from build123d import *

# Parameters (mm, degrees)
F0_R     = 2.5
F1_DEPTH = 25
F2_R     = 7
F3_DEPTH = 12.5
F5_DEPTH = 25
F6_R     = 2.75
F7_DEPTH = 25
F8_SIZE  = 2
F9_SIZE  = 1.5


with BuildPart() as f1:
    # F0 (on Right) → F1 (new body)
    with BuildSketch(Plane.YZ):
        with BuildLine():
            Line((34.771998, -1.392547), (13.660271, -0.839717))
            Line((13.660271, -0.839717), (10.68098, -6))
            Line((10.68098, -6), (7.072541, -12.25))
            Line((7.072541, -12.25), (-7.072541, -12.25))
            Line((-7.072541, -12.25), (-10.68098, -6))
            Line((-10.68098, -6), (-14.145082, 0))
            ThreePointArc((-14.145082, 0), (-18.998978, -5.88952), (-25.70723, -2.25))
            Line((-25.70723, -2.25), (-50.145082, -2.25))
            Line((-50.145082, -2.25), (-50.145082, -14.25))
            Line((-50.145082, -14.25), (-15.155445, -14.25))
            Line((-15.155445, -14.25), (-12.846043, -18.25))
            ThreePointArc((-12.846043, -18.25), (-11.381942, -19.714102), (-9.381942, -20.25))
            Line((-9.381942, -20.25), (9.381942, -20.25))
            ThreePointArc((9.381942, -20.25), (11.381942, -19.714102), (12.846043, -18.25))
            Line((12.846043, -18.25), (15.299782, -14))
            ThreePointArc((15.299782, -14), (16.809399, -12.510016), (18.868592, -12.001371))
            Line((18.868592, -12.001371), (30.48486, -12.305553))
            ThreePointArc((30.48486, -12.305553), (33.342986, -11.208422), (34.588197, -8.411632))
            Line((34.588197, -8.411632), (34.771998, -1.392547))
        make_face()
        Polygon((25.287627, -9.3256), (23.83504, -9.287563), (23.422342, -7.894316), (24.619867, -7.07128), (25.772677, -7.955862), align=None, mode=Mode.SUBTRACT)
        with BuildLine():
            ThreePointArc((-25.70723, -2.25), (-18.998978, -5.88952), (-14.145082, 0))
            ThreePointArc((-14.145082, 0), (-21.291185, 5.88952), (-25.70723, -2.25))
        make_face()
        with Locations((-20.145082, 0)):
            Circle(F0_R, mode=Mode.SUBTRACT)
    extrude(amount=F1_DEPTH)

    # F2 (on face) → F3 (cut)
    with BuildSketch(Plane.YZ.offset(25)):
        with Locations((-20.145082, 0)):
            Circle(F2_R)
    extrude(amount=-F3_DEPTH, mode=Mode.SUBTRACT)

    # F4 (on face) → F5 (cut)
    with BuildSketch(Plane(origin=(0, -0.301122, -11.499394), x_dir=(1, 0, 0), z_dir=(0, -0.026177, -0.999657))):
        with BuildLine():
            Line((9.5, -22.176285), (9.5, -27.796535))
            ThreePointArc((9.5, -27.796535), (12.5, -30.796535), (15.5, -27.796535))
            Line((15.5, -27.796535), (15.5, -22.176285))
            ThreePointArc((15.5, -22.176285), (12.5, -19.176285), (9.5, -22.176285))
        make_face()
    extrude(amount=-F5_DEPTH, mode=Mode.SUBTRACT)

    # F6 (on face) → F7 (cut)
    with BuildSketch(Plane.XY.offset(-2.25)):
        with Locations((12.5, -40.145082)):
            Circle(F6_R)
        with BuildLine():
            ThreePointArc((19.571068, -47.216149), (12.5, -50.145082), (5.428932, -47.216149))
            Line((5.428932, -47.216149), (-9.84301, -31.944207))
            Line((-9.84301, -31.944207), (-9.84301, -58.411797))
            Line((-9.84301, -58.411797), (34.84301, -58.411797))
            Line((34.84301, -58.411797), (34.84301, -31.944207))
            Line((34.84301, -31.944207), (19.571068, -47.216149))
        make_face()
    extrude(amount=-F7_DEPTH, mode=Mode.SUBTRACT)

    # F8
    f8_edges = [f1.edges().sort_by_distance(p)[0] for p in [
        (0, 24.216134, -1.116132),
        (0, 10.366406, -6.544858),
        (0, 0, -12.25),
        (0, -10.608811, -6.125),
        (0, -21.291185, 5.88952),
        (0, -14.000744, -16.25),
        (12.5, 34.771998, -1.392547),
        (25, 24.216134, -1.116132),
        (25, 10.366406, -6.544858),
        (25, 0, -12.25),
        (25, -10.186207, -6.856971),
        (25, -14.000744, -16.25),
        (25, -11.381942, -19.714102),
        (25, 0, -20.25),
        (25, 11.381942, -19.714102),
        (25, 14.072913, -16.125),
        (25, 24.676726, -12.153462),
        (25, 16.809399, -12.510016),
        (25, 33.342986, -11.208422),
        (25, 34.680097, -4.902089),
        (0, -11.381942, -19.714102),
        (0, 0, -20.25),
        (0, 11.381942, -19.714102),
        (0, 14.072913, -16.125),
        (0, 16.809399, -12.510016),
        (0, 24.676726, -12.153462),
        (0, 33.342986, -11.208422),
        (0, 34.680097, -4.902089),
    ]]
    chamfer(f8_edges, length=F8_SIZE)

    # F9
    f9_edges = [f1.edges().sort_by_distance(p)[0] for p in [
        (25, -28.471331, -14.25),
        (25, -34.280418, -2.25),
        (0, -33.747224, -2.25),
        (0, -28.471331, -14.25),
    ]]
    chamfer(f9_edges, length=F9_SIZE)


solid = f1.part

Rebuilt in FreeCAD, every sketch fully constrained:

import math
import FreeCAD as App
import Part
import Sketcher

V = App.Vector
Q = App.Units.Quantity


def edges_at(feature, points):
    """Names of the edges that pass closest to the given points."""
    edges = feature.Shape.Edges
    near = lambda p: min(range(len(edges)), key=lambda i: edges[i].distToShape(Part.Vertex(*p))[0])
    return sorted({f"Edge{near(p) + 1}" for p in points})


def add_polygon(sketch, points):
    """Adds a closed chain of lines whose ends are joined by coincident constraints."""
    first, n = sketch.GeometryCount, len(points)
    for a, b in zip(points, points[1:] + points[:1]):
        sketch.addGeometry(Part.LineSegment(App.Vector(*a, 0), App.Vector(*b, 0)), False)
    for i in range(n):
        sketch.addConstraint(Sketcher.Constraint("Coincident", first + i, 2, first + (i + 1) % n, 1))

doc = App.newDocument("Part")
body = doc.addObject("PartDesign::Body", "Body")

# Sketch on YZ plane
sketch1 = body.newObject("Sketcher::SketchObject", "Sketch")
sketch1.AttachmentSupport = (doc.getObject("YZ_Plane"), [""])
sketch1.MapMode = "FlatFace"
sketch1.addGeometry(Part.LineSegment(V(34.8, -1.4, 0), V(13.7, -0.8, 0)), False)  # 0
sketch1.addGeometry(Part.LineSegment(V(13.7, -0.8, 0), V(10.7, -6, 0)), False)  # 1
sketch1.addGeometry(Part.LineSegment(V(10.7, -6, 0), V(7.1, -12.2, 0)), False)  # 2
sketch1.addGeometry(Part.LineSegment(V(7.1, -12.2, 0), V(-7.1, -12.2, 0)), False)  # 3
sketch1.addGeometry(Part.LineSegment(V(-7.1, -12.2, 0), V(-10.7, -6, 0)), False)  # 4
sketch1.addGeometry(Part.LineSegment(V(-10.7, -6, 0), V(-14.1, 0, 0)), False)  # 5
sketch1.addGeometry(Part.ArcOfCircle(Part.Circle(V(-20.1, 0, 0), V(0, 0, 1), 6), math.radians(0), math.radians(202)), False)  # 6
sketch1.addGeometry(Part.LineSegment(V(-25.7, -2.2, 0), V(-50.1, -2.2, 0)), False)  # 7
sketch1.addGeometry(Part.LineSegment(V(-50.1, -2.2, 0), V(-50.1, -14.2, 0)), False)  # 8
sketch1.addGeometry(Part.LineSegment(V(-50.1, -14.2, 0), V(-15.2, -14.2, 0)), False)  # 9
sketch1.addGeometry(Part.LineSegment(V(-15.2, -14.2, 0), V(-12.8, -18.2, 0)), False)  # 10
sketch1.addGeometry(Part.ArcOfCircle(Part.Circle(V(-9.4, -16.3, 0), V(0, 0, 1), 4), math.radians(-150), math.radians(-90)), False)  # 11
sketch1.addGeometry(Part.LineSegment(V(-9.4, -20.2, 0), V(9.4, -20.2, 0)), False)  # 12
sketch1.addGeometry(Part.ArcOfCircle(Part.Circle(V(9.4, -16.3, 0), V(0, 0, 1), 4), math.radians(-90), math.radians(-30)), False)  # 13
sketch1.addGeometry(Part.LineSegment(V(12.8, -18.2, 0), V(15.3, -14, 0)), False)  # 14
sketch1.addGeometry(Part.ArcOfCircle(Part.Circle(V(18.8, -16, 0), V(0, 0, 1), 4), math.radians(88), math.radians(150)), False)  # 15
sketch1.addGeometry(Part.LineSegment(V(18.9, -12, 0), V(30.5, -12.3, 0)), False)  # 16
sketch1.addGeometry(Part.ArcOfCircle(Part.Circle(V(30.6, -8.3, 0), V(0, 0, 1), 4), math.radians(-92), math.radians(-1)), False)  # 17
sketch1.addGeometry(Part.LineSegment(V(34.6, -8.4, 0), V(34.8, -1.4, 0)), False)  # 18
add_polygon(sketch1, [(25.8, -8), (25.3, -9.3), (23.8, -9.3), (23.4, -7.9), (24.6, -7.1)])  # lines 19-23
sketch1.addGeometry(Part.Circle(V(-20.1, 0, 0), V(0, 0, 1), 2.5), False)  # 24
sketch1.addConstraint([
    Sketcher.Constraint("Coincident", 0, 2, 1, 1),
    Sketcher.Constraint("Coincident", 1, 2, 2, 1),
    Sketcher.Constraint("Coincident", 2, 2, 3, 1),
    Sketcher.Constraint("Coincident", 3, 2, 4, 1),
    Sketcher.Constraint("Coincident", 4, 2, 5, 1),
    Sketcher.Constraint("Coincident", 5, 2, 6, 1),
    Sketcher.Constraint("Coincident", 6, 2, 7, 1),
    Sketcher.Constraint("Coincident", 7, 2, 8, 1),
    Sketcher.Constraint("Coincident", 8, 2, 9, 1),
    Sketcher.Constraint("Coincident", 9, 2, 10, 1),
    Sketcher.Constraint("Tangent", 10, 2, 11, 1),
    Sketcher.Constraint("Tangent", 11, 2, 12, 1),
    Sketcher.Constraint("Tangent", 12, 2, 13, 1),
    Sketcher.Constraint("Tangent", 13, 2, 14, 1),
    Sketcher.Constraint("Tangent", 14, 2, 15, 2),
    Sketcher.Constraint("Tangent", 15, 1, 16, 1),
    Sketcher.Constraint("Tangent", 16, 2, 17, 1),
    Sketcher.Constraint("Tangent", 17, 2, 18, 1),
    Sketcher.Constraint("Coincident", 18, 2, 0, 1),
    Sketcher.Constraint("Horizontal", 3),
    Sketcher.Constraint("Horizontal", 7),
    Sketcher.Constraint("Vertical", 8),
    Sketcher.Constraint("Horizontal", 9),
    Sketcher.Constraint("Horizontal", 12),
    Sketcher.Constraint("Coincident", 24, 3, 6, 3),
    Sketcher.Constraint("Equal", 11, 13),
    Sketcher.Constraint("Equal", 15, 17),
    Sketcher.Constraint("Symmetric", 1, 2, 4, 2, -2),
    Sketcher.Constraint("Symmetric", 10, 2, 13, 2, -2),
    Sketcher.Constraint("PointOnObject", 6, 3, -1),
    Sketcher.Constraint("PointOnObject", 5, 2, -1),
    Sketcher.Constraint("Parallel", 1, 2),
    Sketcher.Constraint("Parallel", 4, 5),
    Sketcher.Constraint("Parallel", 5, 10),
    Sketcher.Constraint("Parallel", 2, 14),
    Sketcher.Constraint("Parallel", 0, 16),
    Sketcher.Constraint("Perpendicular", 16, 18),
    Sketcher.Constraint("Perpendicular", 18, 20),
    Sketcher.Constraint("Equal", 19, 20),
    Sketcher.Constraint("Equal", 20, 21),
    Sketcher.Constraint("Equal", 21, 22),
    Sketcher.Constraint("Equal", 22, 23),
    Sketcher.Constraint("Diameter", 24, Q("5 mm")),
    Sketcher.Constraint("Radius", 6, Q("6 mm")),
    Sketcher.Constraint("Radius", 15, Q("4 mm")),
    Sketcher.Constraint("DistanceY", 8, 2, 8, 1, Q("12 mm")),
    Sketcher.Constraint("Angle", 1, Q("-120.000002 deg")),
    Sketcher.Constraint("DistanceY", 15, 3, -1, 1, Q("16 mm")),
    Sketcher.Constraint("DistanceY", 1, 2, -1, 1, Q("6 mm")),
    Sketcher.Constraint("Angle", 0, Q("178.5 deg")),
    Sketcher.Constraint("Angle", 19, Q("-109.500012 deg")),
    Sketcher.Constraint("Angle", 22, Q("34.499996 deg")),
    Sketcher.Constraint("DistanceY", 3, 2, 6, 2, Q("10 mm")),
    Sketcher.Constraint("DistanceX", 7, 2, 24, 3, Q("30 mm")),
    Sketcher.Constraint("DistanceY", 10, 2, 9, 2, Q("4 mm")),
    Sketcher.Constraint("DistanceY", 11, 2, 10, 2, Q("2 mm")),
    Sketcher.Constraint("DistanceY", 2, 2, -1, 1, Q("12.25 mm")),
    Sketcher.Constraint("DistanceX", -1, 1, 18, 2, Q("34.771998 mm")),
    Sketcher.Constraint("DistanceY", 19, 2, -1, 1, Q("9.3256 mm")),
    Sketcher.Constraint("DistanceX", 0, 2, 17, 3, Q("16.929298 mm")),
    Sketcher.Constraint("DistanceX", 10, 2, 3, 2, Q("5.773502 mm")),
    Sketcher.Constraint("DistanceX", 17, 2, 18, 2, Q("0.183801 mm")),
    Sketcher.Constraint("DistanceY", 20, 2, 23, 2, Q("1.331701 mm")),
    Sketcher.Constraint("DistanceX", -1, 1, 20, 2, Q("23.83504 mm")),
])
pad1 = body.newObject("PartDesign::Pad", "Pad")
pad1.Profile = sketch1
pad1.Length = 25

# Sketch on YZ plane
sketch2 = body.newObject("Sketcher::SketchObject", "Sketch001")
sketch2.AttachmentSupport = (doc.getObject("YZ_Plane"), [""])
sketch2.MapMode = "FlatFace"
sketch2.AttachmentOffset = App.Placement(V(0, 0, 25), App.Rotation())
sketch2.addGeometry(Part.Circle(V(-20, 0, 0), V(0, 0, 1), 7), False)
sketch2.addConstraint([
    Sketcher.Constraint("PointOnObject", 0, 3, -1),
    Sketcher.Constraint("Diameter", 0, Q("14 mm")),
    Sketcher.Constraint("DistanceX", 0, 3, -1, 1, Q("20.145082 mm")),
])
pocket1 = body.newObject("PartDesign::Pocket", "Pocket")
pocket1.Profile = sketch2
pocket1.Length = 12.5

# Sketch on an angled plane
sketch3 = body.newObject("Sketcher::SketchObject", "Sketch002")
sketch3.Placement = App.Placement(V(0, -0.301122, -11.499394), App.Rotation(V(1, 0, 0), V(0, -0.999657323, 0.026177008), V(0, -0.026177008, -0.999657323), "ZXY"))
sketch3.addGeometry([
    Part.LineSegment(V(9.5, -22.2, 0), V(9.5, -27.8, 0)),
    Part.ArcOfCircle(Part.Circle(V(12.5, -27.8, 0), V(0, 0, 1), 3), math.radians(180), math.radians(360)),
    Part.LineSegment(V(15.5, -27.8, 0), V(15.5, -22.2, 0)),
    Part.ArcOfCircle(Part.Circle(V(12.5, -22.2, 0), V(0, 0, 1), 3), math.radians(0), math.radians(180)),
], False)
sketch3.addConstraint([
    Sketcher.Constraint("Tangent", 0, 2, 1, 1),
    Sketcher.Constraint("Tangent", 1, 2, 2, 1),
    Sketcher.Constraint("Tangent", 2, 2, 3, 1),
    Sketcher.Constraint("Tangent", 3, 2, 0, 1),
    Sketcher.Constraint("Vertical", 0),
    Sketcher.Constraint("Vertical", 2),
    Sketcher.Constraint("Radius", 1, Q("3 mm")),
    Sketcher.Constraint("DistanceX", -1, 1, 1, 3, Q("12.5 mm")),
    Sketcher.Constraint("DistanceY", 0, 2, 0, 1, Q("5.62025 mm")),
    Sketcher.Constraint("DistanceY", 1, 3, -1, 1, Q("27.796535 mm")),
])
pocket2 = body.newObject("PartDesign::Pocket", "Pocket001")
pocket2.Profile = sketch3
pocket2.Length = 25

# Sketch on XY plane
sketch4 = body.newObject("Sketcher::SketchObject", "Sketch003")
sketch4.AttachmentSupport = (doc.getObject("XY_Plane"), [""])
sketch4.MapMode = "FlatFace"
sketch4.AttachmentOffset = App.Placement(V(0, 0, -2.25), App.Rotation())
sketch4.addGeometry([
    Part.Circle(V(12.5, -40.1, 0), V(0, 0, 1), 2.8),  # 0
    Part.ArcOfCircle(Part.Circle(V(12.5, -40.1, 0), V(0, 0, 1), 10), math.radians(-135), math.radians(-45)),  # 1
    Part.LineSegment(V(5.4, -47.2, 0), V(-9.8, -31.9, 0)),  # 2
    Part.LineSegment(V(-9.8, -31.9, 0), V(-9.8, -58.4, 0)),  # 3
    Part.LineSegment(V(-9.8, -58.4, 0), V(34.8, -58.4, 0)),  # 4
    Part.LineSegment(V(34.8, -58.4, 0), V(34.8, -31.9, 0)),  # 5
    Part.LineSegment(V(34.8, -31.9, 0), V(19.6, -47.2, 0)),  # 6
], False)
sketch4.addConstraint([
    Sketcher.Constraint("Tangent", 1, 1, 2, 1),
    Sketcher.Constraint("Coincident", 2, 2, 3, 1),
    Sketcher.Constraint("Coincident", 3, 2, 4, 1),
    Sketcher.Constraint("Coincident", 4, 2, 5, 1),
    Sketcher.Constraint("Coincident", 5, 2, 6, 1),
    Sketcher.Constraint("Tangent", 6, 2, 1, 2),
    Sketcher.Constraint("Vertical", 3),
    Sketcher.Constraint("Horizontal", 4),
    Sketcher.Constraint("Vertical", 5),
    Sketcher.Constraint("Coincident", 1, 3, 0, 3),
    Sketcher.Constraint("Perpendicular", 2, 6),
    Sketcher.Constraint("Horizontal", 2, 2, 5, 2),
    Sketcher.Constraint("Horizontal", 1, 1, 6, 2),
    Sketcher.Constraint("Radius", 1, Q("9.999998 mm")),
    Sketcher.Constraint("Diameter", 0, Q("5.5 mm")),
    Sketcher.Constraint("DistanceX", -1, 1, 0, 3, Q("12.5 mm")),
    Sketcher.Constraint("DistanceX", 4, 1, 4, 2, Q("44.68602 mm")),
    Sketcher.Constraint("DistanceY", 3, 2, 3, 1, Q("26.46759 mm")),
    Sketcher.Constraint("DistanceY", 1, 1, -1, 1, Q("47.216149 mm")),
])
pocket3 = body.newObject("PartDesign::Pocket", "Pocket002")
pocket3.Profile = sketch4
pocket3.Length = 25
doc.recompute()

chamfer = body.newObject("PartDesign::Chamfer", "Chamfer")
chamfer.Base = (pocket3, edges_at(pocket3, [
    (0, 24.216, -1.116),
    (0, 8.877, -9.125),
    (0, 0, -12.25),
    (0, -8.877, -9.125),
    (0, -21.291, 5.89),
    (0, -14.001, -16.25),
    (12.5, 34.772, -1.393),
    (25, 24.216, -1.116),
    (25, 8.877, -9.125),
    (25, 0, -12.25),
    (25, -8.877, -9.125),
    (25, -14.001, -16.25),
    (25, -11.382, -19.714),
    (25, 0, -20.25),
    (25, 11.382, -19.714),
    (25, 14.073, -16.125),
    (25, 24.677, -12.153),
    (25, 16.809, -12.51),
    (25, 33.343, -11.208),
    (25, 34.68, -4.902),
    (0, -11.382, -19.714),
    (0, 0, -20.25),
    (0, 11.382, -19.714),
    (0, 14.073, -16.125),
    (0, 16.809, -12.51),
    (0, 24.677, -12.153),
    (0, 33.343, -11.208),
    (0, 34.68, -4.902),
]))
chamfer.Size = 2
doc.recompute()

chamfer2 = body.newObject("PartDesign::Chamfer", "Chamfer001")
chamfer2.Base = (chamfer, edges_at(chamfer, [
    (25, -27.317, -14.25),
    (25, -34.28, -2.25),
    (0, -32.62, -2.25),
    (0, -27.317, -14.25),
]))
chamfer2.Size = 1.5

doc.recompute()
